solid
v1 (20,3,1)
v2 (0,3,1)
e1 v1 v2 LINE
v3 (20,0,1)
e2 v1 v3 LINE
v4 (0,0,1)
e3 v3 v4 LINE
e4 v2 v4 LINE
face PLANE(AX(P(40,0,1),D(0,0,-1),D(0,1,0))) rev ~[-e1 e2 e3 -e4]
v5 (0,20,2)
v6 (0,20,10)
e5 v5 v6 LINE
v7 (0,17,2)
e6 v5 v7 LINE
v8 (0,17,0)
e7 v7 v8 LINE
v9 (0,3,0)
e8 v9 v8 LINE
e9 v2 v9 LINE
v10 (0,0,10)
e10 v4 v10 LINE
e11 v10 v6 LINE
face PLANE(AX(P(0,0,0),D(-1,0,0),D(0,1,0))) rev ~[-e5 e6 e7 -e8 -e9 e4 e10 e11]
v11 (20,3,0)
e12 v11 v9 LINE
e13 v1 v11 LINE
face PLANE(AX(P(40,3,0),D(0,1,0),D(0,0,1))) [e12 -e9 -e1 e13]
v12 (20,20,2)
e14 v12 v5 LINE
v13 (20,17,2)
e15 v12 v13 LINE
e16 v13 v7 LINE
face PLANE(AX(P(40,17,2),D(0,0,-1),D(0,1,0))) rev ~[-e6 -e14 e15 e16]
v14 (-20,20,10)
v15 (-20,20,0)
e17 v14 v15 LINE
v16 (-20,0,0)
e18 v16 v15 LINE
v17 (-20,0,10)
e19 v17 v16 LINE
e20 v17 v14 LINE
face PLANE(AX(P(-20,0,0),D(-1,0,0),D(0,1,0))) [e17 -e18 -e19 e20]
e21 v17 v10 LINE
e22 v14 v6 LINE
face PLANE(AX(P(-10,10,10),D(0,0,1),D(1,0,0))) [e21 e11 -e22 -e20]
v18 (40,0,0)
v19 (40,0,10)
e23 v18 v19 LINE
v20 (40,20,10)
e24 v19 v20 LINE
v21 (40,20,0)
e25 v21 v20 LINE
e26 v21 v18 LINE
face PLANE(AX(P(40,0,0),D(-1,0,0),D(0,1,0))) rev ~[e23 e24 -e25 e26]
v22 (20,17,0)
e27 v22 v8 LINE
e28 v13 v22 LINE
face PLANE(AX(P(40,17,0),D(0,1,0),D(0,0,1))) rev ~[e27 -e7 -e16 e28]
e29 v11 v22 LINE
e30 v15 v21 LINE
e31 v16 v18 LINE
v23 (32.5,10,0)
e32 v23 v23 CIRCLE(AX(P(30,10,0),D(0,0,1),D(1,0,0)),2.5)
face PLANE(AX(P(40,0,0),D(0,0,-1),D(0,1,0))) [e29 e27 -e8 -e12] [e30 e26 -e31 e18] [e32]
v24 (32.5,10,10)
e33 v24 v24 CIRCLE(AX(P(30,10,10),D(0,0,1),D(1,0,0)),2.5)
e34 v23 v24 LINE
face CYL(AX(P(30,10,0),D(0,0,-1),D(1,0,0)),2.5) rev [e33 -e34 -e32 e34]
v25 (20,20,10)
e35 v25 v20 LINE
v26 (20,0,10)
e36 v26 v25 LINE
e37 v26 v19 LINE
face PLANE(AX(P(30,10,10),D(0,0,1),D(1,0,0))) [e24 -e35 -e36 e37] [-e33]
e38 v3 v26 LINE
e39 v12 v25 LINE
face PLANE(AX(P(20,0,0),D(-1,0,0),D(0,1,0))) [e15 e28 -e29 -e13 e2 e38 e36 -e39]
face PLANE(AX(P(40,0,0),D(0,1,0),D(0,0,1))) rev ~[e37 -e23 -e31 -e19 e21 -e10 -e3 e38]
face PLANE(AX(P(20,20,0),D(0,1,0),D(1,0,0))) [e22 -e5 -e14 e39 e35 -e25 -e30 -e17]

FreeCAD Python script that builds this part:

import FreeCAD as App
import Part
import Sketcher

V = App.Vector
Q = App.Units.Quantity


def add_polygon(sketch, points):
    """Adds a closed chain of lines whose ends are joined by coincident constraints."""
    first, n = sketch.GeometryCount, len(points)
    for a, b in zip(points, points[1:] + points[:1]):
        sketch.addGeometry(Part.LineSegment(App.Vector(*a, 0), App.Vector(*b, 0)), False)
    for i in range(n):
        sketch.addConstraint(Sketcher.Constraint("Coincident", first + i, 2, first + (i + 1) % n, 1))

doc = App.newDocument("Part")
body = doc.addObject("PartDesign::Body", "Body")
body.AllowCompound = True

sketch1 = doc.addObject("Sketcher::SketchObject", "Sketch")
body.addObject(sketch1)
sketch1.AttachmentSupport = (doc.XY_Plane, [""])
sketch1.MapMode = "FlatFace"
add_polygon(sketch1, [(-20, 20), (-20, 0), (0, 0), (0, 20)])
add_polygon(sketch1, [(20, 20), (20, 0), (40, 0), (40, 20)])
sketch1.addGeometry(Part.Circle(V(30, 10, 0), V(0, 0, 1), 2.5), False)
sketch1.addConstraint([
    Sketcher.Constraint("Vertical", 0),
    Sketcher.Constraint("Horizontal", 1),
    Sketcher.Constraint("Vertical", 2),
    Sketcher.Constraint("Horizontal", 3),
    Sketcher.Constraint("Vertical", 4),
    Sketcher.Constraint("Horizontal", 5),
    Sketcher.Constraint("Vertical", 6),
    Sketcher.Constraint("Horizontal", 7),
    Sketcher.Constraint("Coincident", 1, 2, -1, 1),
    Sketcher.Constraint("Symmetric", 0, 2, 4, 2, -1, 1),
    Sketcher.Constraint("Horizontal", 3, 2, 6, 2),
    Sketcher.Constraint("Equal", 3, 5),
    Sketcher.Constraint("Equal", 7, 0),
    Sketcher.Constraint("Diameter", 8, Q("5 mm")),
    Sketcher.Constraint("DistanceX", 1, 1, 1, 2, Q("20 mm")),
    Sketcher.Constraint("DistanceX", -1, 1, 8, 3, Q("30 mm")),
    Sketcher.Constraint("DistanceY", -1, 1, 8, 3, Q("10 mm")),
])
pad1 = doc.addObject("PartDesign::Pad", "Pad")
body.addObject(pad1)
pad1.Profile = sketch1
pad1.Length = 10

sketch2 = doc.addObject("Sketcher::SketchObject", "Sketch001")
body.addObject(sketch2)
sketch2.AttachmentSupport = (doc.YZ_Plane, [""])
sketch2.MapMode = "FlatFace"
sketch2.AttachmentOffset = App.Placement(V(0, 0, 40), App.Rotation())
add_polygon(sketch2, [(0, 1), (0, 0), (3, 0), (3, 1)])
add_polygon(sketch2, [(17, 2), (17, 0), (20, 0), (20, 2)])
sketch2.addConstraint([
    Sketcher.Constraint("Vertical", 0),
    Sketcher.Constraint("Horizontal", 1),
    Sketcher.Constraint("Vertical", 2),
    Sketcher.Constraint("Horizontal", 3),
    Sketcher.Constraint("Vertical", 4),
    Sketcher.Constraint("Horizontal", 5),
    Sketcher.Constraint("Vertical", 6),
    Sketcher.Constraint("Horizontal", 7),
    Sketcher.Constraint("Coincident", 0, 2, -1, 1),
    Sketcher.Constraint("PointOnObject", 4, 2, -1),
    Sketcher.Constraint("Equal", 3, 5),
    Sketcher.Constraint("DistanceX", 1, 1, 1, 2, Q("3 mm")),
    Sketcher.Constraint("DistanceY", 0, 2, 0, 1, Q("1 mm")),
    Sketcher.Constraint("DistanceY", 4, 2, 4, 1, Q("2 mm")),
    Sketcher.Constraint("DistanceX", -1, 1, 4, 2, Q("17 mm")),
])
pad2 = doc.addObject("PartDesign::Pad", "Pad001")
body.addObject(pad2)
pad2.Profile = sketch2
pad2.Length = 60
pad2.Reversed = True

doc.recompute()
